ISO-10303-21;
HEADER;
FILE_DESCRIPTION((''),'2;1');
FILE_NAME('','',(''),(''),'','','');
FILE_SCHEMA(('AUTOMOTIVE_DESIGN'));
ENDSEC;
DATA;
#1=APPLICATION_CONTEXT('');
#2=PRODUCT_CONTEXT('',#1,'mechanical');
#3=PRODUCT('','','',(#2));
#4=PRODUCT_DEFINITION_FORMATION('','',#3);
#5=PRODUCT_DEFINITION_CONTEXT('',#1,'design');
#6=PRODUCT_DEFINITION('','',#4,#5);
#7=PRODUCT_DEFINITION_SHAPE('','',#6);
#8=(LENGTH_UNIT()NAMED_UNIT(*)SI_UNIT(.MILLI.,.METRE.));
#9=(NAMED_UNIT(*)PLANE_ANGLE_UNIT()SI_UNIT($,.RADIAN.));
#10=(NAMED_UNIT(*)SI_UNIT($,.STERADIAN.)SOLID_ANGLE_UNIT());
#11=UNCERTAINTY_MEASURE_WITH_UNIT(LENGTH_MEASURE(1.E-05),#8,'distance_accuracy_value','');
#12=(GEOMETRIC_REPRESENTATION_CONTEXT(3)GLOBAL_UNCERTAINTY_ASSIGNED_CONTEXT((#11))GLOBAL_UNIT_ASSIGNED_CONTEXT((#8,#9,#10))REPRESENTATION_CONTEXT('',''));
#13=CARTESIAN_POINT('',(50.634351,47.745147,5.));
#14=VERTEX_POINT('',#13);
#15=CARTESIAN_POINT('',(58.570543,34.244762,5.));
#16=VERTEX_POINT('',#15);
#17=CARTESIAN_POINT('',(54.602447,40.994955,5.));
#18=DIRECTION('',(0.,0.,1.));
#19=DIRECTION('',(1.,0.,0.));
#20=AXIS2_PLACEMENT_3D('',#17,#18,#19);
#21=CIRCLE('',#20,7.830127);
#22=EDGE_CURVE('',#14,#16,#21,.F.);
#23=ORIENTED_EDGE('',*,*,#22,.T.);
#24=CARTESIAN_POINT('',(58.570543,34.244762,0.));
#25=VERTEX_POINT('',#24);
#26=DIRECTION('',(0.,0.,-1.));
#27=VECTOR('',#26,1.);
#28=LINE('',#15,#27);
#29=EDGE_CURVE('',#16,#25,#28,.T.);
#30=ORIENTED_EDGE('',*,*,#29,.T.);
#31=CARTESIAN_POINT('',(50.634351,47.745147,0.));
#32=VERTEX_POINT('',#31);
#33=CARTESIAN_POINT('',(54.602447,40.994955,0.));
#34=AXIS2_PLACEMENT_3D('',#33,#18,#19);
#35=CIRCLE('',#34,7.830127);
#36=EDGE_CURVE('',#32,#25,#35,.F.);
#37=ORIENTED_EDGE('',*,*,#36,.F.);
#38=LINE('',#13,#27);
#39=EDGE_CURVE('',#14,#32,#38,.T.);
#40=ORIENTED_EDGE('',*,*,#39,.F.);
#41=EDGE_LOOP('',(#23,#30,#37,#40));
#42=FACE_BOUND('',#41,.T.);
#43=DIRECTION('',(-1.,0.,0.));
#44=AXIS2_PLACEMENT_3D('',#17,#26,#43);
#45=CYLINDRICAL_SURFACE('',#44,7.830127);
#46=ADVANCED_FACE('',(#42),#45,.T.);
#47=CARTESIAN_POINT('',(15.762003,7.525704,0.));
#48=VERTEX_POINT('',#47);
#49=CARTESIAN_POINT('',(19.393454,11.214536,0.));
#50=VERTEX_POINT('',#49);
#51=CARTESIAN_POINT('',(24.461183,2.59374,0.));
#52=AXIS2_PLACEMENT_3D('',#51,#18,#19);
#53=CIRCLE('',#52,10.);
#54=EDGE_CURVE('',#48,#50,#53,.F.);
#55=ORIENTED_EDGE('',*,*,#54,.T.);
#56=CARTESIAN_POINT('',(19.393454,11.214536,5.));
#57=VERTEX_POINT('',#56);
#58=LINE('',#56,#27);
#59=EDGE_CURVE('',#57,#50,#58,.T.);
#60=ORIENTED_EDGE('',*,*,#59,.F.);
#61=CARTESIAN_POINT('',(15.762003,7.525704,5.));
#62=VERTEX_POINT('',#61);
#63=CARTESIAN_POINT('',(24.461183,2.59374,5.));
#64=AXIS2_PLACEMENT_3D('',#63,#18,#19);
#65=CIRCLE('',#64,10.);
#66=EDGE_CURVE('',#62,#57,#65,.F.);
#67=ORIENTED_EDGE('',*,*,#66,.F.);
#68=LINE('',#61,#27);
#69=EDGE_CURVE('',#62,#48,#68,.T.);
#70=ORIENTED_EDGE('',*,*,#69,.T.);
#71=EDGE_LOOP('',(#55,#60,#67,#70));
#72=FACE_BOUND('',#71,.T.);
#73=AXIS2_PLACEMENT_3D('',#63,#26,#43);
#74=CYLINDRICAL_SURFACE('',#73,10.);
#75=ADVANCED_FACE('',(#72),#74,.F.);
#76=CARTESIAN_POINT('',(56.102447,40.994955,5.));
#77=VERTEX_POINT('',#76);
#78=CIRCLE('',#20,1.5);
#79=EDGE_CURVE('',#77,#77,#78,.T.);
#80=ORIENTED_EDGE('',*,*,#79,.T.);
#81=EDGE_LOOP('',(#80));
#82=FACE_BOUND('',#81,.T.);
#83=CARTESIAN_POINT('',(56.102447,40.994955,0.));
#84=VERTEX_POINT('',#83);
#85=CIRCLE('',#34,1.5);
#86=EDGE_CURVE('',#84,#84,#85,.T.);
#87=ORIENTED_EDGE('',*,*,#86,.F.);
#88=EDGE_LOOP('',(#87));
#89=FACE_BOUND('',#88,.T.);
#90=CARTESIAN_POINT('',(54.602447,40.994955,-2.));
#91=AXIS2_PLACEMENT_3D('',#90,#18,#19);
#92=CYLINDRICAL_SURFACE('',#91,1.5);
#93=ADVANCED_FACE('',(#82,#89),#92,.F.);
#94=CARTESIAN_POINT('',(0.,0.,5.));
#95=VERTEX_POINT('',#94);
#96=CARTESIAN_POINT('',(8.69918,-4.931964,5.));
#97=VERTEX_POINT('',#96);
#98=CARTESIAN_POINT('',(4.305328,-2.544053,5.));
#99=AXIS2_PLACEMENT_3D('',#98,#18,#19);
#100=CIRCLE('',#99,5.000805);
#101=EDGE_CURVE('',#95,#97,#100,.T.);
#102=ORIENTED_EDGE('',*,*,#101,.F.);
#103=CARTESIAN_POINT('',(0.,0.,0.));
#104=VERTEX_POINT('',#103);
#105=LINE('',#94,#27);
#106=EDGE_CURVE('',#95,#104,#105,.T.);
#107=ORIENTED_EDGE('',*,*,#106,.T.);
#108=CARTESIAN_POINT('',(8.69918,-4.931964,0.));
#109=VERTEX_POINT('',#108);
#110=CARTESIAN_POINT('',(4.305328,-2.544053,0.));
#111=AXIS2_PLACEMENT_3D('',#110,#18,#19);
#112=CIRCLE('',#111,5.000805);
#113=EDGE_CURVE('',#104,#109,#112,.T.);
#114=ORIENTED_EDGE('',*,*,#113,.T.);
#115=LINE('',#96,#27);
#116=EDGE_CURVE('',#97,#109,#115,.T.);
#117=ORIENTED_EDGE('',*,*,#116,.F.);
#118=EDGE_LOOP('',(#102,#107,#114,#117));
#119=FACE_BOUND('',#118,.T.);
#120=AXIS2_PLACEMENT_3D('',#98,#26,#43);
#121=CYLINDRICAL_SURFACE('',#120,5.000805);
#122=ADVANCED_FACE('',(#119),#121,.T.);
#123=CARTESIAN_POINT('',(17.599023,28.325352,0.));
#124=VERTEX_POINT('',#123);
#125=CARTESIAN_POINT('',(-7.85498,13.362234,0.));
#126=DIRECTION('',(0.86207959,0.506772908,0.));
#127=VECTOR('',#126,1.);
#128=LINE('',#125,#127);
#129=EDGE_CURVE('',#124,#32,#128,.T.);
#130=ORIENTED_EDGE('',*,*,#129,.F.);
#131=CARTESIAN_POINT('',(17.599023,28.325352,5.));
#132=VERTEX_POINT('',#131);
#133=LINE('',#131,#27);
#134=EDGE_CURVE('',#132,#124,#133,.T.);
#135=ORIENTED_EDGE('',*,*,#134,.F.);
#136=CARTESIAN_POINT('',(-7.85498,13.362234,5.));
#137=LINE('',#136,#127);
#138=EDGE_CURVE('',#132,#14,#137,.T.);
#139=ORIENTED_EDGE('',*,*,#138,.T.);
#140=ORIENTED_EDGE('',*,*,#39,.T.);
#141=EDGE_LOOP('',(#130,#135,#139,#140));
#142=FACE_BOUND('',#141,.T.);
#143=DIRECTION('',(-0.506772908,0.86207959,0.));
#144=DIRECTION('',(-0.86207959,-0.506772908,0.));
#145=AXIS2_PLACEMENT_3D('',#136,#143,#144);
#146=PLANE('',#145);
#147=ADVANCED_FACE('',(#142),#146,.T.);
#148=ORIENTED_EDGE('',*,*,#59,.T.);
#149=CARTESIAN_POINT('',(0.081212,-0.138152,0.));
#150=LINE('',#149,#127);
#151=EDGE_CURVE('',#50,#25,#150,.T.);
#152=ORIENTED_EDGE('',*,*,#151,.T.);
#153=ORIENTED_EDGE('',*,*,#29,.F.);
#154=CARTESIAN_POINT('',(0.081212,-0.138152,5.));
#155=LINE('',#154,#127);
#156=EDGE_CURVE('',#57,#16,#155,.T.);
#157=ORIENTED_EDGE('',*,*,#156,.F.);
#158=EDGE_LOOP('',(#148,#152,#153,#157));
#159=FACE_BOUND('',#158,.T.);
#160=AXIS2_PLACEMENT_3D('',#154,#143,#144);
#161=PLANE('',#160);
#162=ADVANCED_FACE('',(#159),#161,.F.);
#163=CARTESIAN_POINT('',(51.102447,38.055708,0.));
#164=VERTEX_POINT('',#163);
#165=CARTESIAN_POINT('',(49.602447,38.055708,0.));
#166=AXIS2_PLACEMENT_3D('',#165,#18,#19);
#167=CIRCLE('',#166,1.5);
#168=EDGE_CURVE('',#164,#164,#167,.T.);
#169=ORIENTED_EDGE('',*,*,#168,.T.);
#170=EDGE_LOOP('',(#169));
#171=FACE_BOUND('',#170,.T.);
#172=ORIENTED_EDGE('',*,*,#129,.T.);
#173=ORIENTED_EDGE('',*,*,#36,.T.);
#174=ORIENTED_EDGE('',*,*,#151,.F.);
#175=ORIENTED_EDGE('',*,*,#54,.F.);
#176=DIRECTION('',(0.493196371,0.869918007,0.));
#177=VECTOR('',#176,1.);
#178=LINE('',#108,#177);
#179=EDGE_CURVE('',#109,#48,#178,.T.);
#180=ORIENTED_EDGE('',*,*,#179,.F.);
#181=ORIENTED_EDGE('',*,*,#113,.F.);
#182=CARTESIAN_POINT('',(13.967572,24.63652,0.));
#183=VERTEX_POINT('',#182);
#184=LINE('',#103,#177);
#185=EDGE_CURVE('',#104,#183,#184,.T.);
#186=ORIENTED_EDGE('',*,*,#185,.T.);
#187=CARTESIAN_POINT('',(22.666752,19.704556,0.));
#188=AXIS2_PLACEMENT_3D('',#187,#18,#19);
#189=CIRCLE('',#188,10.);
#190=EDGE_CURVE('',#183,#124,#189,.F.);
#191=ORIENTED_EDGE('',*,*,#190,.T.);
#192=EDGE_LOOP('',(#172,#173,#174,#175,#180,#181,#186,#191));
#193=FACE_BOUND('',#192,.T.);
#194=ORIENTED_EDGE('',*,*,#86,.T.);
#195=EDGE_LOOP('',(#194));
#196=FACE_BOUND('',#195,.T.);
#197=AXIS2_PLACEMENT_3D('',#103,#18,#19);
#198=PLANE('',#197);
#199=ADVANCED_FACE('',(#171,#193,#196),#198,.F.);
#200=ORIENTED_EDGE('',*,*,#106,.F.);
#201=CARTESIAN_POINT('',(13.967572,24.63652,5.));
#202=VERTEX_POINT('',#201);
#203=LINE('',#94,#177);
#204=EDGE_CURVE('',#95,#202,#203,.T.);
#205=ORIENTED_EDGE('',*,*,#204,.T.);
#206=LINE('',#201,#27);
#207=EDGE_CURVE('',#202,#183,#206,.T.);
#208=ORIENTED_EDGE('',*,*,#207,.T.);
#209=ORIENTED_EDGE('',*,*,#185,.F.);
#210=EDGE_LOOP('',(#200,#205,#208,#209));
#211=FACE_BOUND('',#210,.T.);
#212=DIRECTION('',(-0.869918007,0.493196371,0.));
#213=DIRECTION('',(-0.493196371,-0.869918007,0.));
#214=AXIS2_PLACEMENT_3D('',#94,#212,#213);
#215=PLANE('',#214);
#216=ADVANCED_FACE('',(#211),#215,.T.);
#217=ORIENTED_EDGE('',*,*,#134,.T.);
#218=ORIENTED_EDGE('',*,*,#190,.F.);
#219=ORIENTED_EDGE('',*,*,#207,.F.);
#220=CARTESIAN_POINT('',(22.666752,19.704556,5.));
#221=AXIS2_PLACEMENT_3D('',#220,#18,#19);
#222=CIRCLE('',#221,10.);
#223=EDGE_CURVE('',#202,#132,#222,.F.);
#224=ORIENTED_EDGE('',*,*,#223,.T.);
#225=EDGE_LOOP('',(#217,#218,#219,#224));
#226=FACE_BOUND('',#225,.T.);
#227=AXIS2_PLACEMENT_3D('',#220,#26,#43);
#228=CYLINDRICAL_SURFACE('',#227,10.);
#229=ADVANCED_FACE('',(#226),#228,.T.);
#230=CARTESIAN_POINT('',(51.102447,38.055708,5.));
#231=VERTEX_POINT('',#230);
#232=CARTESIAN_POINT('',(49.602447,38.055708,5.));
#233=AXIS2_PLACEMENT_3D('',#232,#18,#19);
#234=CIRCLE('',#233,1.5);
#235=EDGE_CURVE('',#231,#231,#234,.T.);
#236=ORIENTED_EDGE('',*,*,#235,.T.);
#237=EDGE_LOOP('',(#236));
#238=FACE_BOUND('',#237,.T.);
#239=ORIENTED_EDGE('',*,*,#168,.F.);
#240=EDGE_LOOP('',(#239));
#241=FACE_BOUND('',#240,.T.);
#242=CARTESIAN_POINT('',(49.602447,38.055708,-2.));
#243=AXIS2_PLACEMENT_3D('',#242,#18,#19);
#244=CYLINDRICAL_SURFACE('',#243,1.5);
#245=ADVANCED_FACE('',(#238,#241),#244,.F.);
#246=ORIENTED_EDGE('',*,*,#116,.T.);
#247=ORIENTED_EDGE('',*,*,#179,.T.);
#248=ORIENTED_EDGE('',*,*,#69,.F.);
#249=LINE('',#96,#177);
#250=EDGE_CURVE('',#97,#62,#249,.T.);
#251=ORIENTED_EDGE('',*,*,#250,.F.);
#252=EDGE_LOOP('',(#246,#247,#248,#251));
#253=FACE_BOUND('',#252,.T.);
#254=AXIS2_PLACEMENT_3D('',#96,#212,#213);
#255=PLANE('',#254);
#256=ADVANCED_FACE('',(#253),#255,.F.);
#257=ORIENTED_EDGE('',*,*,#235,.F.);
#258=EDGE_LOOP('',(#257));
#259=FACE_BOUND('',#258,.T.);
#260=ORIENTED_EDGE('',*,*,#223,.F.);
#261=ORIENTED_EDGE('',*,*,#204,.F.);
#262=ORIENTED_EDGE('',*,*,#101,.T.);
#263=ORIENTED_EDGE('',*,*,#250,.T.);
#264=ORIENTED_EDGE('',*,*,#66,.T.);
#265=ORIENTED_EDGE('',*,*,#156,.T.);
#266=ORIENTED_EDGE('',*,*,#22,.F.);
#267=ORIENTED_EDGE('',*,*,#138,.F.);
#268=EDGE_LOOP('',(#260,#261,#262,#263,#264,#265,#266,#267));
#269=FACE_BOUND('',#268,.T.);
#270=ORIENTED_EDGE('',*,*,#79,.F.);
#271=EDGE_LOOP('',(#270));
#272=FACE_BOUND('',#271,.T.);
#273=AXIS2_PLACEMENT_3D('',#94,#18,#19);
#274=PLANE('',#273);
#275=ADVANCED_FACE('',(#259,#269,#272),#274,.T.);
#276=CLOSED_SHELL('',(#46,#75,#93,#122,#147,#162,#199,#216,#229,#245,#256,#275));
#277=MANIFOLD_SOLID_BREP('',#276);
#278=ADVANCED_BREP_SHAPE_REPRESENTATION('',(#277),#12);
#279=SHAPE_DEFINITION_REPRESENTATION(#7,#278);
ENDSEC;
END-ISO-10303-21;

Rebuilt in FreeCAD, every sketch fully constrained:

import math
import FreeCAD as App
import Part
import Sketcher
from FreeCAD import Vector

doc = App.newDocument("Part")
params = doc.addObject("Spreadsheet::Sheet", "Params")
for row, (alias, value) in enumerate([
    ("sketch1_radius", "10 mm"),
    ("sketch1_radius2", "10 mm"),
    ("pad1_length", "5 mm"),
    ("sketch2_diameter", "3 mm"),
    ("pocket1_length", "7 mm"),
], start=1):
    params.set(f"A{row}", alias)
    params.set(f"B{row}", "=" + value)
    params.setAlias(f"B{row}", alias)

body = doc.addObject("PartDesign::Body", "Body")

sketch1 = body.newObject("Sketcher::SketchObject", "Sketch")
sketch1.AttachmentSupport = (doc.getObject("XY_Plane"), [""])
sketch1.MapMode = "FlatFace"
sketch1.addGeometry([
    Part.LineSegment(Vector(13.967572, 24.63652, 0), Vector(0, 0, 0)),
    Part.ArcOfCircle(Part.Circle(Vector(4.305328, -2.544053, 0), Vector(0, 0, 1), 5.000805), math.radians(149.42081), math.radians(331.477415)),
    Part.LineSegment(Vector(8.69918, -4.931964, 0), Vector(15.762003, 7.525704, 0)),
    Part.ArcOfCircle(Part.Circle(Vector(24.461183, 2.59374, 0), Vector(0, 0, 1), 10), math.radians(120.449113), math.radians(150.449113)),
    Part.LineSegment(Vector(19.393454, 11.214536, 0), Vector(58.570543, 34.244762, 0)),
    Part.ArcOfCircle(Part.Circle(Vector(54.602447, 40.994955, 0), Vector(0, 0, 1), 7.830127), math.radians(-59.550887), math.radians(120.449113)),
    Part.LineSegment(Vector(50.634351, 47.745147, 0), Vector(17.599023, 28.325352, 0)),
    Part.ArcOfCircle(Part.Circle(Vector(22.666752, 19.704556, 0), Vector(0, 0, 1), 10), math.radians(120.449113), math.radians(150.449113)),
], False)
sketch1.addConstraint([
    Sketcher.Constraint("Coincident", 0, 2, 1, 1),
    Sketcher.Constraint("Coincident", 1, 2, 2, 1),
    Sketcher.Constraint("Coincident", 2, 2, 3, 2),
    Sketcher.Constraint("Coincident", 3, 1, 4, 1),
    Sketcher.Constraint("Coincident", 4, 2, 5, 1),
    Sketcher.Constraint("Coincident", 5, 2, 6, 1),
    Sketcher.Constraint("Coincident", 6, 2, 7, 1),
    Sketcher.Constraint("Coincident", 7, 2, 0, 1),
    Sketcher.Constraint("Coincident", 0, 2, -1, 1),
    Sketcher.Constraint("Radius", 3, 10.0),
    Sketcher.Constraint("Radius", 7, 10.0),
    Sketcher.Constraint("Radius", 1, 5.000805),
    Sketcher.Constraint("Radius", 5, 7.830127),
    Sketcher.Constraint("DistanceY", 7, 3, 5, 3, 21.290399),
    Sketcher.Constraint("DistanceX", 3, 1, 7, 3, 3.273298),
    Sketcher.Constraint("DistanceY", 1, 2, 3, 1, 16.1465),
    Sketcher.Constraint("DistanceX", 7, 3, 5, 2, 27.967599),
    Sketcher.Constraint("Distance", 0, 28.320508),
    Sketcher.Constraint("Distance", 2, 14.320508),
    Sketcher.Constraint("Distance", 6, 38.320508),
    Sketcher.Constraint("DistanceY", -1, 1, 3, 3, 2.59374),
    Sketcher.Constraint("DistanceX", -1, 1, 7, 3, 22.666752),
    Sketcher.Constraint("DistanceX", -1, 1, 1, 2, 8.69918),
    Sketcher.Constraint("DistanceX", -1, 1, 7, 2, 13.967572),
    Sketcher.Constraint("DistanceX", 1, 3, 5, 3, 50.297119),
    Sketcher.Constraint("DistanceY", 1, 3, 5, 3, 43.539008),
    Sketcher.Constraint("DistanceX", 7, 3, 4, 2, 35.903791),
])
sketch1.setExpression("Constraints[9]", "Params.sketch1_radius")
sketch1.setExpression("Constraints[10]", "Params.sketch1_radius2")
pad1 = body.newObject("PartDesign::Pad", "Pad")
pad1.Profile = sketch1
pad1.setExpression("Length", "Params.pad1_length")

sketch2 = body.newObject("Sketcher::SketchObject", "Sketch001")
sketch2.AttachmentSupport = (doc.getObject("XY_Plane"), [""])
sketch2.MapMode = "FlatFace"
sketch2.AttachmentOffset = App.Placement(Vector(0, 0, 5), App.Rotation())
sketch2.addGeometry([
    Part.Circle(Vector(54.6, 41, 0), Vector(0, 0, 1), 1.5),
    Part.Circle(Vector(49.6, 38.1, 0), Vector(0, 0, 1), 1.5),
], False)
sketch2.addConstraint([
    Sketcher.Constraint("Equal", 0, 1),
    Sketcher.Constraint("Diameter", 0, 3.0),
    Sketcher.Constraint("DistanceX", 1, 3, 0, 3, 5.0),
    Sketcher.Constraint("DistanceY", -1, 1, 1, 3, 38.055708),
    Sketcher.Constraint("DistanceX", -1, 1, 0, 3, 54.602447),
    Sketcher.Constraint("DistanceY", -1, 1, 0, 3, 40.994955),
])
sketch2.setExpression("Constraints[1]", "Params.sketch2_diameter")
pocket1 = body.newObject("PartDesign::Pocket", "Pocket")
pocket1.Profile = sketch2
pocket1.setExpression("Length", "Params.pocket1_length")

doc.recompute()
